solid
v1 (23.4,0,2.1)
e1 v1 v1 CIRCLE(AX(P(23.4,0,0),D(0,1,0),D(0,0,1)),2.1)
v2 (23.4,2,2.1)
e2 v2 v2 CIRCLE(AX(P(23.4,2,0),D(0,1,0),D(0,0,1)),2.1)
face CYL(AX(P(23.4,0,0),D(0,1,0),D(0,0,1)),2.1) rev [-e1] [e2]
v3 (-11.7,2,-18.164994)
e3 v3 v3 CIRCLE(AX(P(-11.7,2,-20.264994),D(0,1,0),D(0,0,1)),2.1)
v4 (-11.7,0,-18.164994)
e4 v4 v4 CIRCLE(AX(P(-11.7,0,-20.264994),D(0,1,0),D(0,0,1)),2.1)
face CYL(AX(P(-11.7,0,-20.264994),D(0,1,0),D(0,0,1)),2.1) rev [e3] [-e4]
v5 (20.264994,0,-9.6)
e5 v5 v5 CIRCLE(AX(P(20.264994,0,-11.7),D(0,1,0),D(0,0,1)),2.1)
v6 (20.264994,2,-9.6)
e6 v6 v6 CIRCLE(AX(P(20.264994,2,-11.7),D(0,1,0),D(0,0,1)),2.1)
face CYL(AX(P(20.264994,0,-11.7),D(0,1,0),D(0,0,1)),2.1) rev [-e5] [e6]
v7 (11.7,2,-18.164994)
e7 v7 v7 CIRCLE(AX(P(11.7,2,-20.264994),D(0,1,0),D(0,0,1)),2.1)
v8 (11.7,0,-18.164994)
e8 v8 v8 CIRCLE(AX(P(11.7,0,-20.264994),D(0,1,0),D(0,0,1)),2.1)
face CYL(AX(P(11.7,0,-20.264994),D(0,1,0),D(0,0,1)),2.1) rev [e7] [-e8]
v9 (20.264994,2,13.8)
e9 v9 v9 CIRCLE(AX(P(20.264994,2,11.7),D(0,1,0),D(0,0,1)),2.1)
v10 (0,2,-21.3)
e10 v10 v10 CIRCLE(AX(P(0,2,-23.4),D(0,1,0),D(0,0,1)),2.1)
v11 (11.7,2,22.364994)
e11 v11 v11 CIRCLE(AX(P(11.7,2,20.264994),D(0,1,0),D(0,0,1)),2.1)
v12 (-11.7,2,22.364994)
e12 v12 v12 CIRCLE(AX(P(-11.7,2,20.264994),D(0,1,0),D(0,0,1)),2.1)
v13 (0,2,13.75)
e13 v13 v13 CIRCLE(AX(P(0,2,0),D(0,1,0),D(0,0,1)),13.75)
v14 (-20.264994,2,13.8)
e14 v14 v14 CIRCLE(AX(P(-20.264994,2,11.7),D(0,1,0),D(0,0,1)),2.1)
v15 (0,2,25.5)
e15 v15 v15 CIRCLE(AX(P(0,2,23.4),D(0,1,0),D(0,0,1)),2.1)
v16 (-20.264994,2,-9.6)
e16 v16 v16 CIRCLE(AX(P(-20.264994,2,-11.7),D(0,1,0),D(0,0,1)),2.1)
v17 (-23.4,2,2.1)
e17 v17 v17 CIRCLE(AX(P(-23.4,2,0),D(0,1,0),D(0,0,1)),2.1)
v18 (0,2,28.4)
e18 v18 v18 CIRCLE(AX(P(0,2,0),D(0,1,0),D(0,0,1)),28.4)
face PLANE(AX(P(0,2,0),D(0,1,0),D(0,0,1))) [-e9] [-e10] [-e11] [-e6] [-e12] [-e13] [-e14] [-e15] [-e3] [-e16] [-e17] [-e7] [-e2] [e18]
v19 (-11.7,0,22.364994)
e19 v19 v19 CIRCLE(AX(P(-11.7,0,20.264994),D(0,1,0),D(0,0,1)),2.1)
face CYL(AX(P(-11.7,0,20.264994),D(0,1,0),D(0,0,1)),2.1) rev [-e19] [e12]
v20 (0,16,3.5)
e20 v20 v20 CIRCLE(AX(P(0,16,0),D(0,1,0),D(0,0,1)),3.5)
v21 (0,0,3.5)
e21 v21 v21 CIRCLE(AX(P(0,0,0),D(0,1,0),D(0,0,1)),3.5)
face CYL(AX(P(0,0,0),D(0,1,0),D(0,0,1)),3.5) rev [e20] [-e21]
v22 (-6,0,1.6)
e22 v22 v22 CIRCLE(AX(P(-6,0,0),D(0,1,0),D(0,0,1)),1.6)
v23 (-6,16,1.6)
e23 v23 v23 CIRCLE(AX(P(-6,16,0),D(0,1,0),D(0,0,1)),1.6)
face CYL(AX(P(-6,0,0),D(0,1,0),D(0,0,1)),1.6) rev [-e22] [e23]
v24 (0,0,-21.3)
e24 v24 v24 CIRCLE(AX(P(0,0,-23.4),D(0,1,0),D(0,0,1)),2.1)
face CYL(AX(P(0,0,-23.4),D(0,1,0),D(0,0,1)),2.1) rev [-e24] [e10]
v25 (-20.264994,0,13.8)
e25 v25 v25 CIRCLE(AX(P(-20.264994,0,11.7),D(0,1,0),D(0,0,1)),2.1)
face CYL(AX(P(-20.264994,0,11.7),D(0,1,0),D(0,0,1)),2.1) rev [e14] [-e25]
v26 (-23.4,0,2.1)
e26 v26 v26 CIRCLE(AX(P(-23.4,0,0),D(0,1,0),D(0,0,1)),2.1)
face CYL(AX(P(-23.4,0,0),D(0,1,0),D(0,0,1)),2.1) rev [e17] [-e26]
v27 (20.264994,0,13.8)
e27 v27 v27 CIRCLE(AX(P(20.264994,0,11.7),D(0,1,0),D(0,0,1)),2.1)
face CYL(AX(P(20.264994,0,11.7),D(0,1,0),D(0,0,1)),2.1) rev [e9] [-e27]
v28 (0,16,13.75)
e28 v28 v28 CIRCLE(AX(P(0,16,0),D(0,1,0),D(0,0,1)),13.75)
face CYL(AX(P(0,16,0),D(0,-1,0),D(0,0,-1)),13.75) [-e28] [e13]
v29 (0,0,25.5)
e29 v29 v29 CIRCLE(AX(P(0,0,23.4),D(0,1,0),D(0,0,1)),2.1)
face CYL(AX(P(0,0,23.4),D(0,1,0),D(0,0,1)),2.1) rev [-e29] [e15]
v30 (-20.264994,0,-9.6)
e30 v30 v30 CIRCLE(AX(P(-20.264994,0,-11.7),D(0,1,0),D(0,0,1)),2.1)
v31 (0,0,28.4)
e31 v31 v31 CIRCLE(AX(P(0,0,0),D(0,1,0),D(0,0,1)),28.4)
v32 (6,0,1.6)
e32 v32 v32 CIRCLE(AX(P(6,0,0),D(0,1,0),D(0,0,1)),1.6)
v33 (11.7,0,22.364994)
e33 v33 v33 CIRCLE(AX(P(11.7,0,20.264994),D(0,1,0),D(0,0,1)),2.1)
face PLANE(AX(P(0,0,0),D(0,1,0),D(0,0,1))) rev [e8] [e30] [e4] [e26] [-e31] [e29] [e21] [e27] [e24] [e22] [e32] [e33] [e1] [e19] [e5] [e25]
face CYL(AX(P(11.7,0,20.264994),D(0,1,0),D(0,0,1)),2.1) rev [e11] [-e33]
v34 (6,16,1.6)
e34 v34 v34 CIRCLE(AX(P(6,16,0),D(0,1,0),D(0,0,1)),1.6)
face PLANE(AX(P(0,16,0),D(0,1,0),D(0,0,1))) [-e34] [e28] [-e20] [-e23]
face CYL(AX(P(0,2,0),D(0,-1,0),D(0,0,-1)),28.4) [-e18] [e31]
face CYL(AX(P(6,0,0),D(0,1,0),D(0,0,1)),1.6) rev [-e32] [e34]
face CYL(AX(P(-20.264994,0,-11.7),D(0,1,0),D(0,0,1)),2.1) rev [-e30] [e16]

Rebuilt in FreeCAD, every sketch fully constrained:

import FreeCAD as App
import Part
import Sketcher
from FreeCAD import Vector

doc = App.newDocument("Part")
body = doc.addObject("PartDesign::Body", "Body")

# Sketch on XZ plane
sketch1 = doc.addObject("Sketcher::SketchObject", "Sketch")
body.addObject(sketch1)
sketch1.AttachmentSupport = (doc.XZ_Plane, [""])
sketch1.MapMode = "FlatFace"
sketch1.addGeometry(Part.Circle(Vector(0, 0, 0), Vector(0, 0, 1), 28), False)
sketch1.addConstraint(Sketcher.Constraint("Coincident", 0, 3, -1, 1))
sketch1.addConstraint(Sketcher.Constraint("Diameter", 0, 56.8))
pad1 = doc.addObject("PartDesign::Pad", "Pad")
body.addObject(pad1)
pad1.Profile = sketch1
pad1.Length = 2
pad1.Reversed = True

# Sketch on XZ plane
sketch2 = doc.addObject("Sketcher::SketchObject", "Sketch001")
body.addObject(sketch2)
sketch2.AttachmentSupport = (doc.XZ_Plane, [""])
sketch2.MapMode = "FlatFace"
sketch2.AttachmentOffset = App.Placement(Vector(0, 0, -2), App.Rotation())
sketch2.addGeometry(Part.Circle(Vector(0, 0, 0), Vector(0, 0, 1), 14), False)
sketch2.addConstraint(Sketcher.Constraint("Coincident", 0, 3, -1, 1))
sketch2.addConstraint(Sketcher.Constraint("Diameter", 0, 27.5))
pad2 = doc.addObject("PartDesign::Pad", "Pad001")
body.addObject(pad2)
pad2.Profile = sketch2
pad2.Length = 14
pad2.Reversed = True

# Sketch on XZ plane
sketch3 = doc.addObject("Sketcher::SketchObject", "Sketch002")
body.addObject(sketch3)
sketch3.AttachmentSupport = (doc.XZ_Plane, [""])
sketch3.MapMode = "FlatFace"
sketch3.AttachmentOffset = App.Placement(Vector(0, 0, -16), App.Rotation())
sketch3.addGeometry(Part.Circle(Vector(0, 0, 0), Vector(0, 0, 1), 3.5), False)
sketch3.addGeometry(Part.Circle(Vector(-6, 0, 0), Vector(0, 0, 1), 1.6), False)
sketch3.addGeometry(Part.Circle(Vector(6, 0, 0), Vector(0, 0, 1), 1.6), False)
sketch3.addConstraint(Sketcher.Constraint("Coincident", 0, 3, -1, 1))
sketch3.addConstraint(Sketcher.Constraint("Equal", 1, 2))
sketch3.addConstraint(Sketcher.Constraint("Symmetric", 1, 3, 2, 3, -1, 1))
sketch3.addConstraint(Sketcher.Constraint("PointOnObject", 1, 3, -1))
sketch3.addConstraint(Sketcher.Constraint("Diameter", 0, 7.0))
sketch3.addConstraint(Sketcher.Constraint("Diameter", 1, 3.2))
sketch3.addConstraint(Sketcher.Constraint("DistanceX", 1, 3, -1, 1, 6.0))
pocket1 = doc.addObject("PartDesign::Pocket", "Pocket")
body.addObject(pocket1)
pocket1.Profile = sketch3
pocket1.Type = "ThroughAll"
pocket1.Reversed = True

# Sketch on XZ plane
sketch4 = doc.addObject("Sketcher::SketchObject", "Sketch003")
body.addObject(sketch4)
sketch4.AttachmentSupport = (doc.XZ_Plane, [""])
sketch4.MapMode = "FlatFace"
sketch4.AttachmentOffset = App.Placement(Vector(0, 0, -2), App.Rotation())
sketch4.addGeometry(Part.Circle(Vector(0, -23.4, 0), Vector(0, 0, 1), 2.1), False)
sketch4.addGeometry(Part.Circle(Vector(11.7, -20.3, 0), Vector(0, 0, 1), 2.1), False)
sketch4.addGeometry(Part.Circle(Vector(20.3, -11.7, 0), Vector(0, 0, 1), 2.1), False)
sketch4.addGeometry(Part.Circle(Vector(23.4, 0, 0), Vector(0, 0, 1), 2.1), False)
sketch4.addGeometry(Part.Circle(Vector(20.3, 11.7, 0), Vector(0, 0, 1), 2.1), False)
sketch4.addGeometry(Part.Circle(Vector(11.7, 20.3, 0), Vector(0, 0, 1), 2.1), False)
sketch4.addGeometry(Part.Circle(Vector(0, 23.4, 0), Vector(0, 0, 1), 2.1), False)
sketch4.addGeometry(Part.Circle(Vector(-11.7, 20.3, 0), Vector(0, 0, 1), 2.1), False)
sketch4.addGeometry(Part.Circle(Vector(-20.3, 11.7, 0), Vector(0, 0, 1), 2.1), False)
sketch4.addGeometry(Part.Circle(Vector(-23.4, 0, 0), Vector(0, 0, 1), 2.1), False)
sketch4.addGeometry(Part.Circle(Vector(-20.3, -11.7, 0), Vector(0, 0, 1), 2.1), False)
sketch4.addGeometry(Part.Circle(Vector(-11.7, -20.3, 0), Vector(0, 0, 1), 2.1), False)
sketch4.addConstraint(Sketcher.Constraint("Equal", 0, 1))
sketch4.addConstraint(Sketcher.Constraint("Equal", 1, 2))
sketch4.addConstraint(Sketcher.Constraint("Equal", 2, 3))
sketch4.addConstraint(Sketcher.Constraint("Equal", 3, 4))
sketch4.addConstraint(Sketcher.Constraint("Equal", 4, 5))
sketch4.addConstraint(Sketcher.Constraint("Equal", 5, 6))
sketch4.addConstraint(Sketcher.Constraint("Equal", 6, 7))
sketch4.addConstraint(Sketcher.Constraint("Equal", 7, 8))
sketch4.addConstraint(Sketcher.Constraint("Equal", 8, 9))
sketch4.addConstraint(Sketcher.Constraint("Equal", 9, 10))
sketch4.addConstraint(Sketcher.Constraint("Equal", 10, 11))
sketch4.addConstraint(Sketcher.Constraint("Symmetric", 0, 3, 6, 3, -1, 1))
sketch4.addConstraint(Sketcher.Constraint("Symmetric", 1, 3, 7, 3, -1, 1))
sketch4.addConstraint(Sketcher.Constraint("Symmetric", 2, 3, 8, 3, -1, 1))
sketch4.addConstraint(Sketcher.Constraint("Symmetric", 3, 3, 9, 3, -1, 1))
sketch4.addConstraint(Sketcher.Constraint("Symmetric", 4, 3, 10, 3, -1, 1))
sketch4.addConstraint(Sketcher.Constraint("Symmetric", 5, 3, 11, 3, -1, 1))
sketch4.addConstraint(Sketcher.Constraint("Symmetric", 5, 3, 7, 3, -2))
sketch4.addConstraint(Sketcher.Constraint("Symmetric", 4, 3, 8, 3, -2))
sketch4.addConstraint(Sketcher.Constraint("PointOnObject", 0, 3, -2))
sketch4.addConstraint(Sketcher.Constraint("PointOnObject", 3, 3, -1))
sketch4.addConstraint(Sketcher.Constraint("Diameter", 0, 4.2))
sketch4.addConstraint(Sketcher.Constraint("DistanceY", 0, 3, -1, 1, 23.4))
sketch4.addConstraint(Sketcher.Constraint("DistanceX", -1, 1, 1, 3, 11.7))
sketch4.addConstraint(Sketcher.Constraint("DistanceY", 2, 3, -1, 1, 11.7))
sketch4.addConstraint(Sketcher.Constraint("DistanceX", -1, 1, 3, 3, 23.4))
sketch4.addConstraint(Sketcher.Constraint("DistanceY", 1, 3, 5, 3, 40.529989))
sketch4.addConstraint(Sketcher.Constraint("DistanceX", 8, 3, 4, 3, 40.529989))
pocket2 = doc.addObject("PartDesign::Pocket", "Pocket001")
body.addObject(pocket2)
pocket2.Profile = sketch4
pocket2.Type = "ThroughAll"
pocket2.Reversed = True

doc.recompute()
